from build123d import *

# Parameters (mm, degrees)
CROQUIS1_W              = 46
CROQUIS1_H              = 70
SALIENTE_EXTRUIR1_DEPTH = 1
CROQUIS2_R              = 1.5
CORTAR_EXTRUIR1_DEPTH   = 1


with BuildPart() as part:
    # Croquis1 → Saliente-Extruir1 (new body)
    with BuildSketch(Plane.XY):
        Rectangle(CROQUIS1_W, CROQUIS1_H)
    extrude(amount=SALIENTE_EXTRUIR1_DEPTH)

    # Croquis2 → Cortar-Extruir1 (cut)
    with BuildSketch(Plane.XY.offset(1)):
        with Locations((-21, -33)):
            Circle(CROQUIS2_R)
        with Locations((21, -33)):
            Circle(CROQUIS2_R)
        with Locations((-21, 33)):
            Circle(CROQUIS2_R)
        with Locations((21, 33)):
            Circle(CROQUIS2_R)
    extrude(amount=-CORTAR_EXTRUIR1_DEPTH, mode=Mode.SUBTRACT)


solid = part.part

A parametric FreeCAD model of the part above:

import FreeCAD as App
import Part
import Sketcher

doc = App.newDocument("Part")
body = doc.addObject("PartDesign::Body", "Body")

sketch1 = body.newObject("Sketcher::SketchObject", "Sketch")
sketch1.AttachmentSupport = (doc.getObject("XY_Plane"), [""])
sketch1.MapMode = "FlatFace"
sketch1.addGeometry(Part.LineSegment(App.Vector(-23, 35, 0), App.Vector(-23, -35, 0)), False)
sketch1.addGeometry(Part.LineSegment(App.Vector(-23, -35, 0), App.Vector(23, -35, 0)), False)
sketch1.addGeometry(Part.LineSegment(App.Vector(23, -35, 0), App.Vector(23, 35, 0)), False)
sketch1.addGeometry(Part.LineSegment(App.Vector(23, 35, 0), App.Vector(-23, 35, 0)), False)
sketch1.addConstraint(Sketcher.Constraint("Coincident", 0, 2, 1, 1))
sketch1.addConstraint(Sketcher.Constraint("Coincident", 1, 2, 2, 1))
sketch1.addConstraint(Sketcher.Constraint("Coincident", 2, 2, 3, 1))
sketch1.addConstraint(Sketcher.Constraint("Coincident", 3, 2, 0, 1))
sketch1.addConstraint(Sketcher.Constraint("Vertical", 0))
sketch1.addConstraint(Sketcher.Constraint("Horizontal", 1))
sketch1.addConstraint(Sketcher.Constraint("Vertical", 2))
sketch1.addConstraint(Sketcher.Constraint("Horizontal", 3))
sketch1.addConstraint(Sketcher.Constraint("Symmetric", 0, 2, 2, 2, -1, 1))
sketch1.addConstraint(Sketcher.Constraint("DistanceX", 1, 1, 1, 2, 46.0))
sketch1.addConstraint(Sketcher.Constraint("DistanceY", 0, 2, 0, 1, 70.0))
pad1 = body.newObject("PartDesign::Pad", "Pad")
pad1.Profile = sketch1
pad1.Length = 1

sketch2 = body.newObject("Sketcher::SketchObject", "Sketch001")
sketch2.AttachmentSupport = (doc.getObject("XY_Plane"), [""])
sketch2.MapMode = "FlatFace"
sketch2.AttachmentOffset = App.Placement(App.Vector(0, 0, 1), App.Rotation())
sketch2.addGeometry(Part.Circle(App.Vector(-21, -33, 0), App.Vector(0, 0, 1), 1.5), False)
sketch2.addGeometry(Part.Circle(App.Vector(21, -33, 0), App.Vector(0, 0, 1), 1.5), False)
sketch2.addGeometry(Part.Circle(App.Vector(-21, 33, 0), App.Vector(0, 0, 1), 1.5), False)
sketch2.addGeometry(Part.Circle(App.Vector(21, 33, 0), App.Vector(0, 0, 1), 1.5), False)
sketch2.addConstraint(Sketcher.Constraint("Equal", 0, 1))
sketch2.addConstraint(Sketcher.Constraint("Equal", 1, 2))
sketch2.addConstraint(Sketcher.Constraint("Equal", 2, 3))
sketch2.addConstraint(Sketcher.Constraint("Symmetric", 1, 3, 2, 3, -1, 1))
sketch2.addConstraint(Sketcher.Constraint("Symmetric", 0, 3, 3, 3, -1, 1))
sketch2.addConstraint(Sketcher.Constraint("Symmetric", 0, 3, 1, 3, -2))
sketch2.addConstraint(Sketcher.Constraint("Diameter", 0, 3.0))
sketch2.addConstraint(Sketcher.Constraint("DistanceX", 0, 3, -1, 1, 21.0))
sketch2.addConstraint(Sketcher.Constraint("DistanceY", 0, 3, -1, 1, 33.0))
pocket1 = body.newObject("PartDesign::Pocket", "Pocket")
pocket1.Profile = sketch2
pocket1.Length = 1

doc.recompute()
